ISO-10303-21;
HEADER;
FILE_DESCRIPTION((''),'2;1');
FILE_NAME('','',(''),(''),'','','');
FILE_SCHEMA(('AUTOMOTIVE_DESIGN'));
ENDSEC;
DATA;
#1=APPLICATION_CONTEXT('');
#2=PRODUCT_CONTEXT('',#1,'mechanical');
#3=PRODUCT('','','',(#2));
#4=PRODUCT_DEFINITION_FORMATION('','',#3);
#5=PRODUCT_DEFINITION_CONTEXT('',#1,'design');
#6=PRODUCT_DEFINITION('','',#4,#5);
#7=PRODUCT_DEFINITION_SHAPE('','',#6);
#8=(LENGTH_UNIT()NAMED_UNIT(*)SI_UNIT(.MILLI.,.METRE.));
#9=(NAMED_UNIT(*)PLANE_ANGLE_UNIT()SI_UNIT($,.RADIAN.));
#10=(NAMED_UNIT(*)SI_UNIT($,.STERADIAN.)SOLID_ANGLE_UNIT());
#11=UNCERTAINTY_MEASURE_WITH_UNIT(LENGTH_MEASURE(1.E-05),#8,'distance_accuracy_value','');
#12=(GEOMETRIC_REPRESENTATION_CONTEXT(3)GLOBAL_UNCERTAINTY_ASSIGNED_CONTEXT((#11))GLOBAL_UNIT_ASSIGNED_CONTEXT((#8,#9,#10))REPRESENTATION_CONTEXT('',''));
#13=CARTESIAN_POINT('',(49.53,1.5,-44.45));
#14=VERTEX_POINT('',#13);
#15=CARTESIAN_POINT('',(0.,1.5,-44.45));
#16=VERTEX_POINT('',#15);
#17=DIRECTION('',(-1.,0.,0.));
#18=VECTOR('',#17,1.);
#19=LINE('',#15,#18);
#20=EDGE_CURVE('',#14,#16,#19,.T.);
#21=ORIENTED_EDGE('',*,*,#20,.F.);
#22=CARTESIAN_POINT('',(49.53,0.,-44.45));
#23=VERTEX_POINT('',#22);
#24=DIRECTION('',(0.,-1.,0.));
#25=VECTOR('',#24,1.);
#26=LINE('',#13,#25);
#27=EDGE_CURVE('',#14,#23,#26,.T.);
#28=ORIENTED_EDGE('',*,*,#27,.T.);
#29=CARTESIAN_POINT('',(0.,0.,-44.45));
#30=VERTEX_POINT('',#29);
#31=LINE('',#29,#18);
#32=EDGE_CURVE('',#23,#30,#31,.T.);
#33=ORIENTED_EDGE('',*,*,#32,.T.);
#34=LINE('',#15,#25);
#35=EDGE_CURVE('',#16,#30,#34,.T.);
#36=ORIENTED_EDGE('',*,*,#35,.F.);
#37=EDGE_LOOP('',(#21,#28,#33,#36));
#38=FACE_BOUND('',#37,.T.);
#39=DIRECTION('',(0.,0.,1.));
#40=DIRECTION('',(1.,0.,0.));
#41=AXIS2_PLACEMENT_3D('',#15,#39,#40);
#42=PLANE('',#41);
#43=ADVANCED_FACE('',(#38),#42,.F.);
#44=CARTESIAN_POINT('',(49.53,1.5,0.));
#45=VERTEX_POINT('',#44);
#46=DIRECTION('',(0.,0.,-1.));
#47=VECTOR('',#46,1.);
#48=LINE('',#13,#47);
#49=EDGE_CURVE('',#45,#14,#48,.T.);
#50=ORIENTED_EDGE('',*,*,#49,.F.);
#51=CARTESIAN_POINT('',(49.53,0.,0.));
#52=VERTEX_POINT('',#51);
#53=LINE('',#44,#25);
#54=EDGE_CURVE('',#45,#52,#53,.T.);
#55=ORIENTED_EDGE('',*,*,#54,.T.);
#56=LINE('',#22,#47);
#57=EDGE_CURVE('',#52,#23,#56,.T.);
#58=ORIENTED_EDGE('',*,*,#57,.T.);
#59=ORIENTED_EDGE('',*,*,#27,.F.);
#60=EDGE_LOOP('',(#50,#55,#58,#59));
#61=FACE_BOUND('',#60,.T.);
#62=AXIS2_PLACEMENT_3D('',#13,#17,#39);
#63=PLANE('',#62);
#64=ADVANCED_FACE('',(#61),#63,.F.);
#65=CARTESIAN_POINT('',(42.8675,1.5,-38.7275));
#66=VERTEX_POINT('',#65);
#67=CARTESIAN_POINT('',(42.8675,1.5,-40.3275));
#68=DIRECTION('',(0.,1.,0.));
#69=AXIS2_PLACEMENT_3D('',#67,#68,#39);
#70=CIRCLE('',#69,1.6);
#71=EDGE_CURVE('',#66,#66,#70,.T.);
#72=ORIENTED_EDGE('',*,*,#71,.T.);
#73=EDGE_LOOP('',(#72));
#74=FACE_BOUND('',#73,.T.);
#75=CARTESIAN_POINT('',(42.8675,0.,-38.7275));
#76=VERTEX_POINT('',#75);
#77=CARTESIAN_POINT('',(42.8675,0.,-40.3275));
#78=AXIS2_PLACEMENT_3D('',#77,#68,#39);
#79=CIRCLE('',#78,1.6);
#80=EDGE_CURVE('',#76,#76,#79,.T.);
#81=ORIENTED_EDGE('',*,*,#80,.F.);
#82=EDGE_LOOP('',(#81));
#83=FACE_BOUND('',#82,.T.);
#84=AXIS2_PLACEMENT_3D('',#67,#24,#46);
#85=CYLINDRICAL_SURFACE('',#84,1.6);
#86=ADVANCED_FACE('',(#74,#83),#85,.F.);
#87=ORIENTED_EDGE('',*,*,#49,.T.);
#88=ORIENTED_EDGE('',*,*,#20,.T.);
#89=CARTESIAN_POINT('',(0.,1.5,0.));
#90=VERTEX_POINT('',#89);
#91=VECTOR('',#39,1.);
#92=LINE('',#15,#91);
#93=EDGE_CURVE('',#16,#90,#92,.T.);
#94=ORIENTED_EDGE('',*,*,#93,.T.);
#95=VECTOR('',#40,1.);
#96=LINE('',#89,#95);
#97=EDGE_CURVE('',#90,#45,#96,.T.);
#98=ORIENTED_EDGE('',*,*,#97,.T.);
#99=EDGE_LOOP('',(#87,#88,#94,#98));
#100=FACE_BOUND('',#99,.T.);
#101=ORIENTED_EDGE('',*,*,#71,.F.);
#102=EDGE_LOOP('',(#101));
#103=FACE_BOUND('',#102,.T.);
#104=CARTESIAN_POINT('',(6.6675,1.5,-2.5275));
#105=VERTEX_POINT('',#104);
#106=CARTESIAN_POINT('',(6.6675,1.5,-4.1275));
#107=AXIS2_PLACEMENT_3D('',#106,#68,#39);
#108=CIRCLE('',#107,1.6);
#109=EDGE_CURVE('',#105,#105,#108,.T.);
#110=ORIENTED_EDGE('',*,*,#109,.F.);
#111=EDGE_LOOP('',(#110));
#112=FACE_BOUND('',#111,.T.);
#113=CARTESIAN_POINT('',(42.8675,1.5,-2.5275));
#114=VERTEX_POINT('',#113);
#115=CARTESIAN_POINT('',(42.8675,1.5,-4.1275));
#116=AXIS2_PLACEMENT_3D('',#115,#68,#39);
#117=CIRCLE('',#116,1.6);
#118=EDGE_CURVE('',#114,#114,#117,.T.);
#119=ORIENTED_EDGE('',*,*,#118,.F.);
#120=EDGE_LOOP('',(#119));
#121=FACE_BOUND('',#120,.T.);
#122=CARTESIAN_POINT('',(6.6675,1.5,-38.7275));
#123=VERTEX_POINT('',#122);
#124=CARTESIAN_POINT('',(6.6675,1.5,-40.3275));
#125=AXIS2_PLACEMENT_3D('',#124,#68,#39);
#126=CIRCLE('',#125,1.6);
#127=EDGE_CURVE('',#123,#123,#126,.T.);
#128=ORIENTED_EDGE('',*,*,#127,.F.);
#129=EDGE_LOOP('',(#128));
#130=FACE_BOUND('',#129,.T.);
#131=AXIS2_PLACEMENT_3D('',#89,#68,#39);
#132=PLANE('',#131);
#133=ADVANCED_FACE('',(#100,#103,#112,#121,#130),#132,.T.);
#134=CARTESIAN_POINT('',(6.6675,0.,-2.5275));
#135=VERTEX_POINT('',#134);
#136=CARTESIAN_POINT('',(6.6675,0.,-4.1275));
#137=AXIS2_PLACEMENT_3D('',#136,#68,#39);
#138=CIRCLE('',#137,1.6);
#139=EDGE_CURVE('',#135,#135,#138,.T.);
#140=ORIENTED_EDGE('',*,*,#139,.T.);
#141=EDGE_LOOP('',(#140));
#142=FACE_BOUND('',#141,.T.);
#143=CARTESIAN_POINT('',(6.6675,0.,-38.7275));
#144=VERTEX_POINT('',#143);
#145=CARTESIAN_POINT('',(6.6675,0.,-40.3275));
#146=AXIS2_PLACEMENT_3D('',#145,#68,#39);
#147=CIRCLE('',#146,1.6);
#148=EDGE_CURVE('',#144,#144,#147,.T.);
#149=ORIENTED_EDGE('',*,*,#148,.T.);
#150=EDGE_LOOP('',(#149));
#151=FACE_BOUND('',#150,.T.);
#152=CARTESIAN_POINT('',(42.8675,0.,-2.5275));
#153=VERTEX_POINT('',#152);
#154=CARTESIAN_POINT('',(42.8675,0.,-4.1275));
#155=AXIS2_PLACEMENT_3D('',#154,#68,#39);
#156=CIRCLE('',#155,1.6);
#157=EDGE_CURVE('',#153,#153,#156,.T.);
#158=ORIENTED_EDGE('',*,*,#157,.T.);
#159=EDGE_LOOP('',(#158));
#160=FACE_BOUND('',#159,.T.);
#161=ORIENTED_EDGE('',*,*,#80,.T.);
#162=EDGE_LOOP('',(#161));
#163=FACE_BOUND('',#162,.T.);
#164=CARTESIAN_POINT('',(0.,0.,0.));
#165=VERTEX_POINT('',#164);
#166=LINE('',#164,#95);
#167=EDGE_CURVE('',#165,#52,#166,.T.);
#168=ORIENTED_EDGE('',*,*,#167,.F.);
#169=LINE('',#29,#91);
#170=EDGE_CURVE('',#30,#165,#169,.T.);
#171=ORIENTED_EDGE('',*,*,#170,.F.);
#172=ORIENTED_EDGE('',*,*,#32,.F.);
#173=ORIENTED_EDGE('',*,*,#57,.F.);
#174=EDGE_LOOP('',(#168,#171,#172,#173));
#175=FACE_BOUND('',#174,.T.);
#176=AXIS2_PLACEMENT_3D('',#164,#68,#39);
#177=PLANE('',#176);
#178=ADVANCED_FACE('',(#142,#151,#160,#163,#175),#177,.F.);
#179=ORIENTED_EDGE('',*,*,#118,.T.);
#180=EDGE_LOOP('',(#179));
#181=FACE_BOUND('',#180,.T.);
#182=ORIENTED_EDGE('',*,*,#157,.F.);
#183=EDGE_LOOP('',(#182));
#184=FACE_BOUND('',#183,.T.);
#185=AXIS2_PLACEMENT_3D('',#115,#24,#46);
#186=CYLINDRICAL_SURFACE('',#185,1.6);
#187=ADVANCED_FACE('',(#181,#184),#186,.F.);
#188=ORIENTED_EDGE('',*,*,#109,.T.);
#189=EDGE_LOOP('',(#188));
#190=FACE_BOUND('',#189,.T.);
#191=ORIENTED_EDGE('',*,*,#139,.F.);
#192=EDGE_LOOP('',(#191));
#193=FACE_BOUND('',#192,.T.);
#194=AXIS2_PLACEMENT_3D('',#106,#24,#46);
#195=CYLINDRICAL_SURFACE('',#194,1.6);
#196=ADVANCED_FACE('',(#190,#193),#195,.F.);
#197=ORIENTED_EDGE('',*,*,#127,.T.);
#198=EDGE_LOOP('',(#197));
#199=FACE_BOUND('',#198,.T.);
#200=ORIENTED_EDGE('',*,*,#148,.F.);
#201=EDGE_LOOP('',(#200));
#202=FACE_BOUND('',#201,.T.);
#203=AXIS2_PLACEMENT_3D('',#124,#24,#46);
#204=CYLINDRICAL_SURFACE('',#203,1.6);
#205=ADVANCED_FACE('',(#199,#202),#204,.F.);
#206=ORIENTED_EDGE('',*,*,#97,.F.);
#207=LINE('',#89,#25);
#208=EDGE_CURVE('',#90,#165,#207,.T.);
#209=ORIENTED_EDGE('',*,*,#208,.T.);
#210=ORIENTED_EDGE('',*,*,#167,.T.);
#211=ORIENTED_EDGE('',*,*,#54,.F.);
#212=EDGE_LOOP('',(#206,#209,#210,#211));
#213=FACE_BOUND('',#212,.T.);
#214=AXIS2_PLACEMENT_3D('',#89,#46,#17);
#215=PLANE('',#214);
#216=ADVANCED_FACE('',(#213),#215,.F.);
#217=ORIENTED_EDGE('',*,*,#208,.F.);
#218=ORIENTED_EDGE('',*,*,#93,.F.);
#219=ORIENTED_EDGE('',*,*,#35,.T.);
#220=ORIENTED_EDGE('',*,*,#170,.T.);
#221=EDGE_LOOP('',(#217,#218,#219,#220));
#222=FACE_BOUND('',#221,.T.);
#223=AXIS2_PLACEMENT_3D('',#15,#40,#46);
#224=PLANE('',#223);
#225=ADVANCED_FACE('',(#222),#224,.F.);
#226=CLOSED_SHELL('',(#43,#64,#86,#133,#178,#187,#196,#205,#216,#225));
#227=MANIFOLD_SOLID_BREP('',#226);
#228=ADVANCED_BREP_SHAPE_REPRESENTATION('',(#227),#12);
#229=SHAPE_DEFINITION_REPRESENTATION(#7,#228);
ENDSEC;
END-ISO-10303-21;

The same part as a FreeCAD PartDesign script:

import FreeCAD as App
import Part
import Sketcher
from FreeCAD import Vector
Q = App.Units.Quantity

doc = App.newDocument("Part")
body = doc.addObject("PartDesign::Body", "Body")

# Sketch on XZ plane
sketch1 = body.newObject("Sketcher::SketchObject", "Sketch")
sketch1.AttachmentSupport = (doc.getObject("XZ_Plane"), [""])
sketch1.MapMode = "FlatFace"
sketch1.addGeometry(Part.LineSegment(Vector(0, -44.5, 0), Vector(0, 0, 0)), False)
sketch1.addGeometry(Part.LineSegment(Vector(0, 0, 0), Vector(49.5, 0, 0)), False)
sketch1.addGeometry(Part.LineSegment(Vector(49.5, 0, 0), Vector(49.5, -44.5, 0)), False)
sketch1.addGeometry(Part.LineSegment(Vector(49.5, -44.5, 0), Vector(0, -44.5, 0)), False)
sketch1.addGeometry(Part.Circle(Vector(6.7, -4.1, 0), Vector(0, 0, 1), 1.6), False)
sketch1.addGeometry(Part.Circle(Vector(42.9, -4.1, 0), Vector(0, 0, 1), 1.6), False)
sketch1.addGeometry(Part.Circle(Vector(6.7, -40.3, 0), Vector(0, 0, 1), 1.6), False)
sketch1.addGeometry(Part.Circle(Vector(42.9, -40.3, 0), Vector(0, 0, 1), 1.6), False)
sketch1.addConstraint(Sketcher.Constraint("Coincident", 0, 2, 1, 1))
sketch1.addConstraint(Sketcher.Constraint("Coincident", 1, 2, 2, 1))
sketch1.addConstraint(Sketcher.Constraint("Coincident", 2, 2, 3, 1))
sketch1.addConstraint(Sketcher.Constraint("Coincident", 3, 2, 0, 1))
sketch1.addConstraint(Sketcher.Constraint("Vertical", 0))
sketch1.addConstraint(Sketcher.Constraint("Horizontal", 1))
sketch1.addConstraint(Sketcher.Constraint("Vertical", 2))
sketch1.addConstraint(Sketcher.Constraint("Horizontal", 3))
sketch1.addConstraint(Sketcher.Constraint("Coincident", 0, 2, -1, 1))
sketch1.addConstraint(Sketcher.Constraint("Equal", 4, 5))
sketch1.addConstraint(Sketcher.Constraint("Equal", 5, 6))
sketch1.addConstraint(Sketcher.Constraint("Equal", 6, 7))
sketch1.addConstraint(Sketcher.Constraint("Horizontal", 4, 3, 5, 3))
sketch1.addConstraint(Sketcher.Constraint("Horizontal", 6, 3, 7, 3))
sketch1.addConstraint(Sketcher.Constraint("Vertical", 4, 3, 6, 3))
sketch1.addConstraint(Sketcher.Constraint("Vertical", 5, 3, 7, 3))
sketch1.addConstraint(Sketcher.Constraint("Diameter", 4, Q("3.2 mm")))
sketch1.addConstraint(Sketcher.Constraint("DistanceX", 1, 1, 1, 2, Q("49.53 mm")))
sketch1.addConstraint(Sketcher.Constraint("DistanceY", 0, 1, 0, 2, Q("44.45 mm")))
sketch1.addConstraint(Sketcher.Constraint("DistanceX", 4, 3, 5, 3, Q("36.2 mm")))
sketch1.addConstraint(Sketcher.Constraint("DistanceY", 6, 3, 4, 3, Q("36.2 mm")))
sketch1.addConstraint(Sketcher.Constraint("DistanceX", -1, 1, 4, 3, Q("6.6675 mm")))
sketch1.addConstraint(Sketcher.Constraint("DistanceY", 4, 3, -1, 1, Q("4.1275 mm")))
pad1 = body.newObject("PartDesign::Pad", "Pad")
pad1.Profile = sketch1
pad1.Length = 1.5
pad1.Reversed = True

doc.recompute()
